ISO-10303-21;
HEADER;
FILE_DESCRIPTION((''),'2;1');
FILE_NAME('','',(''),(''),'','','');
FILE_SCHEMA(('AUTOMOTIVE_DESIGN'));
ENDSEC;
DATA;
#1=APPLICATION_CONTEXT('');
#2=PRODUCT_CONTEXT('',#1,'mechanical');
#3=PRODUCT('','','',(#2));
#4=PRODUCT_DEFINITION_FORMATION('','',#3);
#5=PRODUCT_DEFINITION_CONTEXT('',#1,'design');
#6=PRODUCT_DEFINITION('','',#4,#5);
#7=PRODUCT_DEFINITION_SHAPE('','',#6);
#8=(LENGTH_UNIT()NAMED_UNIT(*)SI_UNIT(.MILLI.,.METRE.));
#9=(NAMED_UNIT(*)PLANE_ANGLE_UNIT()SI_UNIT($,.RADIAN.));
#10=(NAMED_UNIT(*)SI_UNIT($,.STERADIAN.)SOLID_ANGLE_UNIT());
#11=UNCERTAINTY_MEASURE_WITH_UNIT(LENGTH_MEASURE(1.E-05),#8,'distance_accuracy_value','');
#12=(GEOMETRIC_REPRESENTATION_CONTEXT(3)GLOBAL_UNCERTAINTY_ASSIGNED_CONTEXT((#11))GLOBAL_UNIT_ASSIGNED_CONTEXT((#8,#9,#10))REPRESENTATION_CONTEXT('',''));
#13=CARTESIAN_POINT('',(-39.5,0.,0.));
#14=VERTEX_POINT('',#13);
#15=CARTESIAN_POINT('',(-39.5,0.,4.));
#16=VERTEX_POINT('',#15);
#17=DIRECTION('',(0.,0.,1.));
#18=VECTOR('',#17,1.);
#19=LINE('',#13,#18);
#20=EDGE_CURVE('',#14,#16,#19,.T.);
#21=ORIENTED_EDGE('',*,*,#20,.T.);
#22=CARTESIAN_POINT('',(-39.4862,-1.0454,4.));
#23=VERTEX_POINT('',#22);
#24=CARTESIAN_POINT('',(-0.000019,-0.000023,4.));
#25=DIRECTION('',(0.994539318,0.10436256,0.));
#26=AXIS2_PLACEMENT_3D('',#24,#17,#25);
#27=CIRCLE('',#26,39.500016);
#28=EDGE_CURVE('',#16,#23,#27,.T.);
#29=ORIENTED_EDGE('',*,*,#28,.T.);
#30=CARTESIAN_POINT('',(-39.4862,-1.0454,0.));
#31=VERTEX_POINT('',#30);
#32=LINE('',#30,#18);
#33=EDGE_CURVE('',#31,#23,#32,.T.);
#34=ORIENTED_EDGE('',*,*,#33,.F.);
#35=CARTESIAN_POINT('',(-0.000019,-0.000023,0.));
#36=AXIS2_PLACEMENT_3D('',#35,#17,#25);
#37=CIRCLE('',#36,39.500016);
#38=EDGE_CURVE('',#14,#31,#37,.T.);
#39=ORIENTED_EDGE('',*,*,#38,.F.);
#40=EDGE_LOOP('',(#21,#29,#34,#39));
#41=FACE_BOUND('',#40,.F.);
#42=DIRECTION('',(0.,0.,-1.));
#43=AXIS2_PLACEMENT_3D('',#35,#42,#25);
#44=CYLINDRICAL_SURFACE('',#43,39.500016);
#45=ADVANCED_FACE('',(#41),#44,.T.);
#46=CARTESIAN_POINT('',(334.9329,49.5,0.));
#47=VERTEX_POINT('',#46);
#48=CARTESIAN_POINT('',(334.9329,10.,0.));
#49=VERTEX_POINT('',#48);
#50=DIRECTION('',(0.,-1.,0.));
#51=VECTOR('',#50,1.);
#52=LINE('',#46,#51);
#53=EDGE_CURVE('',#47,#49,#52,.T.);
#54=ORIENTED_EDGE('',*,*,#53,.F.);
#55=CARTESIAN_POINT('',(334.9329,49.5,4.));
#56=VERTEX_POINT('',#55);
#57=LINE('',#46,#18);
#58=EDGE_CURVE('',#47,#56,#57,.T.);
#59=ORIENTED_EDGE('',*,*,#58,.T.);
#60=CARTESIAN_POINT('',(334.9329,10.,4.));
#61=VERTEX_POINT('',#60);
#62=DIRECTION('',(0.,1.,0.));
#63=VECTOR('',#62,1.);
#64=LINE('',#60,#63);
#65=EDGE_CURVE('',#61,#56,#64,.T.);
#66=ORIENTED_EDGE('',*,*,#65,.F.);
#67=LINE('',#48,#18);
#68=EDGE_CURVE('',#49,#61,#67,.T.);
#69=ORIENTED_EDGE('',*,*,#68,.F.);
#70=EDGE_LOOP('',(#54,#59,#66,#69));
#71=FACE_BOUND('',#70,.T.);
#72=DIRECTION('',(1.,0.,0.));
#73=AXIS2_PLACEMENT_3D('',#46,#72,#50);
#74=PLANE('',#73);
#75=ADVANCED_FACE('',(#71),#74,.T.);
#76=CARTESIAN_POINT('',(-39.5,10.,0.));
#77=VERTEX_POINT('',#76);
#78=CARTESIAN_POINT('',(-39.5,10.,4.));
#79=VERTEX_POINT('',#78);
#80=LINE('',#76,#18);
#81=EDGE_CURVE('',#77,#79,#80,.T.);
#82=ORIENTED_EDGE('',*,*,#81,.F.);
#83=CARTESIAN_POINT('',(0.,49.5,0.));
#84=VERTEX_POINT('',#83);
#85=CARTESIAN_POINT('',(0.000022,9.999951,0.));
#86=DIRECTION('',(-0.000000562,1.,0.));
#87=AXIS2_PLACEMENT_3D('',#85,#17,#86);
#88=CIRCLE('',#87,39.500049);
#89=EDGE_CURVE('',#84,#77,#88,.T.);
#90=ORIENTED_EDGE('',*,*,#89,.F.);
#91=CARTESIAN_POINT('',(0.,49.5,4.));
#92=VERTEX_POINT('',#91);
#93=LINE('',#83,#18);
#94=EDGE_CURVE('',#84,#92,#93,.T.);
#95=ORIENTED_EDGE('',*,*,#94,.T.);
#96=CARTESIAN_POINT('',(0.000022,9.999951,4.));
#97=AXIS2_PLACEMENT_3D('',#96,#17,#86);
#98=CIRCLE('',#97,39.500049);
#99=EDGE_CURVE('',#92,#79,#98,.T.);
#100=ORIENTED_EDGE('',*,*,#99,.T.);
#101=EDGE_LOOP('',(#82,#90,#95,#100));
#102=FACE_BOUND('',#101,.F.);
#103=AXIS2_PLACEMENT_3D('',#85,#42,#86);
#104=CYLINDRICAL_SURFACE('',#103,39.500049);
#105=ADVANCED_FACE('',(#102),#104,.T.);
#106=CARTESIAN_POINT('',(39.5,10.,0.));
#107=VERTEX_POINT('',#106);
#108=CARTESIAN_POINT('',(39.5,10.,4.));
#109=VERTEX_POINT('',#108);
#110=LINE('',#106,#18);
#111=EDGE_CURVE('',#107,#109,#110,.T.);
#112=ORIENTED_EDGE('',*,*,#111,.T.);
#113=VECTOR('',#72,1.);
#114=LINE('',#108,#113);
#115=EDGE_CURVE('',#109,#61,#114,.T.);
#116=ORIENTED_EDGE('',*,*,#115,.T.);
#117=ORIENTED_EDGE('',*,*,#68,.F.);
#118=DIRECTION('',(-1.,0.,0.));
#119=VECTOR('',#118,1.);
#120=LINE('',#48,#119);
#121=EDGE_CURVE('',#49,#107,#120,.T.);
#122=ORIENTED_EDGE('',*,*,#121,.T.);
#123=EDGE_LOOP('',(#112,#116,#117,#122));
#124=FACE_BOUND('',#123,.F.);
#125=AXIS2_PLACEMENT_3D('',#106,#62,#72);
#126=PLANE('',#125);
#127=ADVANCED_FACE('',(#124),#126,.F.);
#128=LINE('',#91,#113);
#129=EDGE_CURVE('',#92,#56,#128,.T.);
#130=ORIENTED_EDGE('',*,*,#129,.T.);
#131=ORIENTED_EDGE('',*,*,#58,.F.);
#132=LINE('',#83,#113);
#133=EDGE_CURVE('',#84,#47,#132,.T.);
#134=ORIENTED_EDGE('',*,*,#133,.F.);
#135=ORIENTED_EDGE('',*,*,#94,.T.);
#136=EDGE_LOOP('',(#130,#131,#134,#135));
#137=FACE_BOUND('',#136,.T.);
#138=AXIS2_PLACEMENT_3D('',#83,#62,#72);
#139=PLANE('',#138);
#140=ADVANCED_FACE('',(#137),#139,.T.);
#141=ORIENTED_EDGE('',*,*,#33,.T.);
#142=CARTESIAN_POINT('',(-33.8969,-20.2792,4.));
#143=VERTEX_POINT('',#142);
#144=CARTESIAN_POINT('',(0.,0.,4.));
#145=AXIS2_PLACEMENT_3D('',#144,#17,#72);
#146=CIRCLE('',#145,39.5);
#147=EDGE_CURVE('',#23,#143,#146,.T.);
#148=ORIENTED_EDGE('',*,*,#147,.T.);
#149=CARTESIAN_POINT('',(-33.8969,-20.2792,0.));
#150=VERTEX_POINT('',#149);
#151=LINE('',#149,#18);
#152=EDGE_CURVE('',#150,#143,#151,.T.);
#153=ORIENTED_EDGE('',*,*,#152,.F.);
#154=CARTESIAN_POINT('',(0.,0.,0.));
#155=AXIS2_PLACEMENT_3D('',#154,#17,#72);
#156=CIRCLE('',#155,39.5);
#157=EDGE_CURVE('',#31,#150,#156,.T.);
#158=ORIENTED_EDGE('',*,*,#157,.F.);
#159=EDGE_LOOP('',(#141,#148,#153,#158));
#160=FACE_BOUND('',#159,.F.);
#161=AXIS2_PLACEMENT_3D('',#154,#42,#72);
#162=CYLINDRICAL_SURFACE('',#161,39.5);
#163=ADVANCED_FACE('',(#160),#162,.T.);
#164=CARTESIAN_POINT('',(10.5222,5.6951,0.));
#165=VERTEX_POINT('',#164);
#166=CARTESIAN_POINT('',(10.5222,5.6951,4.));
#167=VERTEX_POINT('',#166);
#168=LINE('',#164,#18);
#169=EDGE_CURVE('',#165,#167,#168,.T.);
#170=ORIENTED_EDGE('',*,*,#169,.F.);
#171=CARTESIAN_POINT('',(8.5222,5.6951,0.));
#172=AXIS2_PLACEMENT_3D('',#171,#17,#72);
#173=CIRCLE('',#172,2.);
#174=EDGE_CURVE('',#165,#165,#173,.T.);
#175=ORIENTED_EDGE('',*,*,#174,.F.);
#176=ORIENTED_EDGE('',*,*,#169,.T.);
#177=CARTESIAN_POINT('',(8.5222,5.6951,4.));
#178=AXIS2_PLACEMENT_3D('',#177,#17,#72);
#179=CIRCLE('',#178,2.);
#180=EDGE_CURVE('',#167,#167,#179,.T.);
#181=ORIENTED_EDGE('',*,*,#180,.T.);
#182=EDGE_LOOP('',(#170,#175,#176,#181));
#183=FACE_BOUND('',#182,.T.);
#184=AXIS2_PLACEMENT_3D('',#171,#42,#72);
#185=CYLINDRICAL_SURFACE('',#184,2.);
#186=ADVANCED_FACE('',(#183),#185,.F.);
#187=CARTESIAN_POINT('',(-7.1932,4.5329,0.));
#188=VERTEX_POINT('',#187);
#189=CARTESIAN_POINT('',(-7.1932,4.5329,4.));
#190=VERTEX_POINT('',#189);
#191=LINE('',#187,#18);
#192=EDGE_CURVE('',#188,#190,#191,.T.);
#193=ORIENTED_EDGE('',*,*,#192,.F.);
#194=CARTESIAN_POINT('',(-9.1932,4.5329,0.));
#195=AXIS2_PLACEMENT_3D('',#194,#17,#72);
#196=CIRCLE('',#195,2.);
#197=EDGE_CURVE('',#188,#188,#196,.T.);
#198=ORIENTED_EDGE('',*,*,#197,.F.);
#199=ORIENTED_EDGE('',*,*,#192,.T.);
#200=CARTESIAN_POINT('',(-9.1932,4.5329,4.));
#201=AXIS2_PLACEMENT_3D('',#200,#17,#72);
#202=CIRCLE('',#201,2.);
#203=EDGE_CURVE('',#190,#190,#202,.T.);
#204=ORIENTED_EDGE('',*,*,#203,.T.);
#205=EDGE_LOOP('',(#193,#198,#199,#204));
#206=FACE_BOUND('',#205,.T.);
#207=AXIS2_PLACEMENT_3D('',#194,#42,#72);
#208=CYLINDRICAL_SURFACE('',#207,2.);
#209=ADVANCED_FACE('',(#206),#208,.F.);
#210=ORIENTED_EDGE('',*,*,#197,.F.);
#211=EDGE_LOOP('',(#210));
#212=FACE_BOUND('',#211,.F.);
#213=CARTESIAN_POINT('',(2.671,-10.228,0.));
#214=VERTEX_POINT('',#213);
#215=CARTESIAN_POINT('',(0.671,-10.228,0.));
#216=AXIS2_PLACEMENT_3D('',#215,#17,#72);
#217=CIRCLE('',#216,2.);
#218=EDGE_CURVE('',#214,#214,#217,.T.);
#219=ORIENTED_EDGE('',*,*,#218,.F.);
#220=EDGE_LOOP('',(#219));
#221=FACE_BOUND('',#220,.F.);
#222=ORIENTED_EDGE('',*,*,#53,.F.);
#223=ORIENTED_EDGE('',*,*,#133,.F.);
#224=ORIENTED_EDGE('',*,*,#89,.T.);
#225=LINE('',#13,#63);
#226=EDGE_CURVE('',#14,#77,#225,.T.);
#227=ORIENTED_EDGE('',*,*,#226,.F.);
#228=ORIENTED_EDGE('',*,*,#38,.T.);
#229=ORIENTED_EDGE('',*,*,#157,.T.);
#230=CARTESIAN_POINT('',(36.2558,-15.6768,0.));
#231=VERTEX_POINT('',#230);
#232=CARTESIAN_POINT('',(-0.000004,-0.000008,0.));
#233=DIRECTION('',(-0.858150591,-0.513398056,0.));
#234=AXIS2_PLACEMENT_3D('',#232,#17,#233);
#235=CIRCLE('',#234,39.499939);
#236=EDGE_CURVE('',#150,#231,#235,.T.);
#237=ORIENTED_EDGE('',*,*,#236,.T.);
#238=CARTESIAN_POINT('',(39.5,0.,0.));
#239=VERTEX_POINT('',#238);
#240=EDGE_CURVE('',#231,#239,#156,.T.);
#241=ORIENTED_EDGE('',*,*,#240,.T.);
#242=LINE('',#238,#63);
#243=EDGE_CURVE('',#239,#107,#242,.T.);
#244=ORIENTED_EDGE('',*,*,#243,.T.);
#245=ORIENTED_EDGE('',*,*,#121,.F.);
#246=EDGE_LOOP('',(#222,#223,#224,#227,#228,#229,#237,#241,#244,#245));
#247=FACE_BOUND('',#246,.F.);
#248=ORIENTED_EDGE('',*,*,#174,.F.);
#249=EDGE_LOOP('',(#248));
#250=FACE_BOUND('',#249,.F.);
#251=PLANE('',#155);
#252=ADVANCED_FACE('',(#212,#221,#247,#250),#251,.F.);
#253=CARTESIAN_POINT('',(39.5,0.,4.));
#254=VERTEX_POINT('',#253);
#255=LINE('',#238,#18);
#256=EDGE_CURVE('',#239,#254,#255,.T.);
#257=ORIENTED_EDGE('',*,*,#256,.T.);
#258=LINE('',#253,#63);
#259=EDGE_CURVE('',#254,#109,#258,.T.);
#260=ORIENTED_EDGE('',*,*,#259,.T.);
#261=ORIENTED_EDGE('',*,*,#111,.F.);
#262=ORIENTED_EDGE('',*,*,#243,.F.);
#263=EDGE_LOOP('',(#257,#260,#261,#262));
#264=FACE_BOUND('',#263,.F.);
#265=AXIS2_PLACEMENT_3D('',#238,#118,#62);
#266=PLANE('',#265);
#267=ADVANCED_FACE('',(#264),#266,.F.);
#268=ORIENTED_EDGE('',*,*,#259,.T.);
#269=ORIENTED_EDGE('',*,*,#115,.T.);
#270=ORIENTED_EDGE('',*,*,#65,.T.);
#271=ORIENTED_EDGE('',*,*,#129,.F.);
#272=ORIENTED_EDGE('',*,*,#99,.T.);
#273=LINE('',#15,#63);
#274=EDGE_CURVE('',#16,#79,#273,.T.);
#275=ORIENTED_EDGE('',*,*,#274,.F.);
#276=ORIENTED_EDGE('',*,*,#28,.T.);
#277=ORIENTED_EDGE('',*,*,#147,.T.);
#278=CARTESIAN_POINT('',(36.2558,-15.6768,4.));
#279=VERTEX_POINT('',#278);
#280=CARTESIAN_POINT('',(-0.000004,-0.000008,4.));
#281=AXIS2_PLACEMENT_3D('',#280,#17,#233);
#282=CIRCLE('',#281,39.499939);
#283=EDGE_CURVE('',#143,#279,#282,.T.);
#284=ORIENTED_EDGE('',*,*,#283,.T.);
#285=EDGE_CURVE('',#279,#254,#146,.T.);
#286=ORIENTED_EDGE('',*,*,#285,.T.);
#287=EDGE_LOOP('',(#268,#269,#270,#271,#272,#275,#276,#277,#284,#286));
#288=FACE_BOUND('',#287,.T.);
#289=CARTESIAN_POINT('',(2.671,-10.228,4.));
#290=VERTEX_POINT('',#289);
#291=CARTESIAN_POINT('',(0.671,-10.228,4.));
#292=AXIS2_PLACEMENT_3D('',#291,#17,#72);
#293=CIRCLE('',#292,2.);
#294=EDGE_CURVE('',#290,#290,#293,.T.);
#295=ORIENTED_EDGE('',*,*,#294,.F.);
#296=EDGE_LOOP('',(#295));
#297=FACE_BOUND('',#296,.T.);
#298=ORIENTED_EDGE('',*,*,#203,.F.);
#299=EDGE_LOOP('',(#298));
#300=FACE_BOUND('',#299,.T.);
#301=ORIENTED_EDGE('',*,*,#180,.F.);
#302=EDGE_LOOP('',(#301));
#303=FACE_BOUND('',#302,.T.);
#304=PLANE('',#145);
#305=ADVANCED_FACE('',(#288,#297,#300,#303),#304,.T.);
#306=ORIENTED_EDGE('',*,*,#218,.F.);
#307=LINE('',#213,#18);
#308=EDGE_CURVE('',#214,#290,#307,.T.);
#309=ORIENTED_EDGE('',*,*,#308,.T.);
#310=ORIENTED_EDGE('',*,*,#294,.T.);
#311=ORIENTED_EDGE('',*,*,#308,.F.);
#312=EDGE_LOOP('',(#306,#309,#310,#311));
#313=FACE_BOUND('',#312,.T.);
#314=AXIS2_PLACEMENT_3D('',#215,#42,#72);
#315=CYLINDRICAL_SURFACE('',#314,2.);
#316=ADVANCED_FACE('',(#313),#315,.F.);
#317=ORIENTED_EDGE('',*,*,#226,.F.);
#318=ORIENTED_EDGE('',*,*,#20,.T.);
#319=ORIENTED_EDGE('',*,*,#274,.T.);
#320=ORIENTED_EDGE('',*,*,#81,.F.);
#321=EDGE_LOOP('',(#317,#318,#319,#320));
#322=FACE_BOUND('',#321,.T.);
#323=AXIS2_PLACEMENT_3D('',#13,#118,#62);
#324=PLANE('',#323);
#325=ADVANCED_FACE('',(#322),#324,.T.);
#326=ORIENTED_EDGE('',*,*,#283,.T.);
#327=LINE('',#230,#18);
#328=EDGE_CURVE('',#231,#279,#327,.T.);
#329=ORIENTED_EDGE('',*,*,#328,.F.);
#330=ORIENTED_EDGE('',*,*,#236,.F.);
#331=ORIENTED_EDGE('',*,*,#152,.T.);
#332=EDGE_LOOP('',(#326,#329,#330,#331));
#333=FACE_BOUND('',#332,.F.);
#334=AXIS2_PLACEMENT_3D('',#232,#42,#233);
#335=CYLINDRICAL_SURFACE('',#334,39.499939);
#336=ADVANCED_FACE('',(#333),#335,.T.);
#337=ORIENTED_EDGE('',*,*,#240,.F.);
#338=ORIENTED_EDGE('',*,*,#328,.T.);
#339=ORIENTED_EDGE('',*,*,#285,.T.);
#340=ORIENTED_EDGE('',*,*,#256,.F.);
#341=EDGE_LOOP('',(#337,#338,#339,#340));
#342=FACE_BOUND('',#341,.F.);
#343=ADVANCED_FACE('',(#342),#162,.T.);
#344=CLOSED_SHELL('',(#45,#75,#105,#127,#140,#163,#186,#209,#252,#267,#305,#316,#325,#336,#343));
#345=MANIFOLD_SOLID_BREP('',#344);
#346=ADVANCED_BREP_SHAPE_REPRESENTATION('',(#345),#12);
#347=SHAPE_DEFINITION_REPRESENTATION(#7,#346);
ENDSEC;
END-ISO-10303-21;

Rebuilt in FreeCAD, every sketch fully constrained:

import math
import FreeCAD as App
import Part
import Sketcher

doc = App.newDocument("Part")
params = doc.addObject("Spreadsheet::Sheet", "Params")
for row, (alias, value) in enumerate([
    ("sketch1_diameter", "4 mm"),
    ("sketch1_radius", "39.5 mm"),
    ("sketch1_height", "10 mm"),
    ("pad1_length", "4 mm"),
], start=1):
    params.set(f"A{row}", alias)
    params.set(f"B{row}", "=" + value)
    params.setAlias(f"B{row}", alias)

body = doc.addObject("PartDesign::Body", "Body")

sketch1 = doc.addObject("Sketcher::SketchObject", "Sketch")
body.addObject(sketch1)
sketch1.AttachmentSupport = (doc.XY_Plane, [""])
sketch1.MapMode = "FlatFace"
sketch1.addGeometry([
    Part.ArcOfCircle(Part.Circle(App.Vector(0, 0, 0), App.Vector(0, 0, 1), 39.5), math.radians(-23.383379), math.radians(0)),
    Part.LineSegment(App.Vector(39.5, 0, 0), App.Vector(39.5, 10, 0)),
    Part.LineSegment(App.Vector(39.5, 10, 0), App.Vector(334.9329, 10, 0)),
    Part.LineSegment(App.Vector(334.9329, 10, 0), App.Vector(334.9329, 49.5, 0)),
    Part.LineSegment(App.Vector(334.9329, 49.5, 0), App.Vector(0, 49.5, 0)),
    Part.ArcOfCircle(Part.Circle(App.Vector(0, 10, 0), App.Vector(0, 0, 1), 39.500033), math.radians(90), math.radians(180)),
    Part.LineSegment(App.Vector(-39.5, 10, 0), App.Vector(-39.5, 0, 0)),
    Part.ArcOfCircle(Part.Circle(App.Vector(0, 0, 0), App.Vector(0, 0, 1), 39.5), math.radians(180), math.radians(181.516556)),
    Part.ArcOfCircle(Part.Circle(App.Vector(0, 0, 0), App.Vector(0, 0, 1), 39.5), math.radians(-178.483444), math.radians(-149.109554)),
    Part.ArcOfCircle(Part.Circle(App.Vector(0, 0, 0), App.Vector(0, 0, 1), 39.499947), math.radians(-149.109554), math.radians(-23.383379)),
    Part.Circle(App.Vector(0.671, -10.228, 0), App.Vector(0, 0, 1), 2),
    Part.Circle(App.Vector(-9.1932, 4.5329, 0), App.Vector(0, 0, 1), 2),
    Part.Circle(App.Vector(8.5222, 5.6951, 0), App.Vector(0, 0, 1), 2),
], False)
sketch1.addConstraint([
    Sketcher.Constraint("Tangent", 0, 2, 1, 1),
    Sketcher.Constraint("Coincident", 1, 2, 2, 1),
    Sketcher.Constraint("Coincident", 2, 2, 3, 1),
    Sketcher.Constraint("Coincident", 3, 2, 4, 1),
    Sketcher.Constraint("Tangent", 4, 2, 5, 1),
    Sketcher.Constraint("Tangent", 5, 2, 6, 1),
    Sketcher.Constraint("Tangent", 6, 2, 7, 1),
    Sketcher.Constraint("Tangent", 7, 2, 8, 1),
    Sketcher.Constraint("Tangent", 8, 2, 9, 1),
    Sketcher.Constraint("Tangent", 9, 2, 0, 1),
    Sketcher.Constraint("Vertical", 1),
    Sketcher.Constraint("Horizontal", 2),
    Sketcher.Constraint("Vertical", 3),
    Sketcher.Constraint("Horizontal", 4),
    Sketcher.Constraint("Vertical", 6),
    Sketcher.Constraint("Coincident", 0, 3, -1, 1),
    Sketcher.Constraint("Coincident", 7, 3, -1, 1),
    Sketcher.Constraint("Equal", 0, 5),
    Sketcher.Constraint("Equal", 5, 7),
    Sketcher.Constraint("Equal", 10, 11),
    Sketcher.Constraint("Equal", 11, 12),
    Sketcher.Constraint("Horizontal", 5, 3, 1, 2),
    Sketcher.Constraint("Diameter", 10, 4.0),
    Sketcher.Constraint("Radius", 0, 39.5),
    Sketcher.Constraint("DistanceY", 1, 1, 1, 2, 10.0),
    Sketcher.Constraint("DistanceX", 2, 1, 2, 2, 295.433),
    Sketcher.Constraint("DistanceX", -1, 1, 10, 3, 0.671),
    Sketcher.Constraint("DistanceY", 10, 3, -1, 1, 10.228),
    Sketcher.Constraint("DistanceY", -1, 1, 11, 3, 4.533),
    Sketcher.Constraint("DistanceY", -1, 1, 12, 3, 5.695),
    Sketcher.Constraint("DistanceX", 8, 2, -1, 1, 33.897),
    Sketcher.Constraint("DistanceX", 7, 2, 11, 3, 30.293),
    Sketcher.Constraint("DistanceY", 9, 2, 12, 3, 21.372),
    Sketcher.Constraint("DistanceX", 11, 3, -1, 1, 9.1932),
    Sketcher.Constraint("DistanceX", -1, 1, 12, 3, 8.5222),
])
sketch1.setExpression("Constraints[22]", "Params.sketch1_diameter")
sketch1.setExpression("Constraints[23]", "Params.sketch1_radius")
sketch1.setExpression("Constraints[24]", "Params.sketch1_height")
pad1 = doc.addObject("PartDesign::Pad", "Pad")
body.addObject(pad1)
pad1.Profile = sketch1
pad1.setExpression("Length", "Params.pad1_length")

doc.recompute()
